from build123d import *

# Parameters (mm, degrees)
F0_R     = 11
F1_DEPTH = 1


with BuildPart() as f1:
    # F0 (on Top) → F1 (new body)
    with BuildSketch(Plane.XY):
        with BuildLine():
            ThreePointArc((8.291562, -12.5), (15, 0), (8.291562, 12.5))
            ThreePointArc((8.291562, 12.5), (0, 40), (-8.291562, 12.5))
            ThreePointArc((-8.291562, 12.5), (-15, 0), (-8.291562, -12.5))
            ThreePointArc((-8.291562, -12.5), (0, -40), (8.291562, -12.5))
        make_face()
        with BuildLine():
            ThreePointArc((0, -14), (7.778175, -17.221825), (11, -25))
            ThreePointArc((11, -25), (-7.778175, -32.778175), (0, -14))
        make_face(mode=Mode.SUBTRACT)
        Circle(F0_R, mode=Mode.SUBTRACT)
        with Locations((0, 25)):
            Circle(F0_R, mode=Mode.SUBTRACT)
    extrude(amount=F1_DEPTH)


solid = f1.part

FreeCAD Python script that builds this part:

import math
import FreeCAD as App
import Part
import Sketcher
Q = App.Units.Quantity

doc = App.newDocument("Part")
params = doc.addObject("Spreadsheet::Sheet", "Params")
for row, (alias, value) in enumerate([
    ("sketch1_diameter", "22 mm"),
    ("sketch1_radius", "15 mm"),
    ("pad1_length", "1 mm"),
], start=1):
    params.set(f"A{row}", alias)
    params.set(f"B{row}", "=" + value)
    params.setAlias(f"B{row}", alias)

body = doc.addObject("PartDesign::Body", "Body")

sketch1 = body.newObject("Sketcher::SketchObject", "Sketch")
sketch1.AttachmentSupport = (doc.getObject("XY_Plane"), [""])
sketch1.MapMode = "FlatFace"
sketch1.addGeometry(Part.ArcOfCircle(Part.Circle(App.Vector(0, 0, 0), App.Vector(0, 0, 1), 15), math.radians(-56), math.radians(56)), False)
sketch1.addGeometry(Part.ArcOfCircle(Part.Circle(App.Vector(0, 25, 0), App.Vector(0, 0, 1), 15), math.radians(-56), math.radians(236)), False)
sketch1.addGeometry(Part.ArcOfCircle(Part.Circle(App.Vector(0, 0, 0), App.Vector(0, 0, 1), 15), math.radians(124), math.radians(236)), False)
sketch1.addGeometry(Part.ArcOfCircle(Part.Circle(App.Vector(0, -25, 0), App.Vector(0, 0, 1), 15), math.radians(124), math.radians(416)), False)
sketch1.addGeometry(Part.ArcOfCircle(Part.Circle(App.Vector(0, -25, 0), App.Vector(0, 0, 1), 11), math.radians(90), math.radians(360)), False)
sketch1.addGeometry(Part.ArcOfCircle(Part.Circle(App.Vector(0, -25, 0), App.Vector(0, 0, 1), 11), math.radians(0), math.radians(90)), False)
sketch1.addGeometry(Part.Circle(App.Vector(0, 0, 0), App.Vector(0, 0, 1), 11), False)
sketch1.addGeometry(Part.Circle(App.Vector(0, 25, 0), App.Vector(0, 0, 1), 11), False)
sketch1.addConstraint(Sketcher.Constraint("Coincident", 0, 2, 1, 1))
sketch1.addConstraint(Sketcher.Constraint("Coincident", 1, 2, 2, 1))
sketch1.addConstraint(Sketcher.Constraint("Coincident", 2, 2, 3, 1))
sketch1.addConstraint(Sketcher.Constraint("Coincident", 3, 2, 0, 1))
sketch1.addConstraint(Sketcher.Constraint("Tangent", 4, 1, 5, 2))
sketch1.addConstraint(Sketcher.Constraint("Coincident", 5, 1, 4, 2))
sketch1.addConstraint(Sketcher.Constraint("Coincident", 0, 3, -1, 1))
sketch1.addConstraint(Sketcher.Constraint("Coincident", 2, 3, -1, 1))
sketch1.addConstraint(Sketcher.Constraint("Coincident", 6, 3, -1, 1))
sketch1.addConstraint(Sketcher.Constraint("Coincident", 4, 3, 3, 3))
sketch1.addConstraint(Sketcher.Constraint("Coincident", 7, 3, 1, 3))
sketch1.addConstraint(Sketcher.Constraint("Equal", 0, 1))
sketch1.addConstraint(Sketcher.Constraint("Equal", 1, 2))
sketch1.addConstraint(Sketcher.Constraint("Equal", 2, 3))
sketch1.addConstraint(Sketcher.Constraint("Equal", 5, 6))
sketch1.addConstraint(Sketcher.Constraint("Equal", 6, 7))
sketch1.addConstraint(Sketcher.Constraint("Symmetric", 1, 3, 3, 3, -1, 1))
sketch1.addConstraint(Sketcher.Constraint("PointOnObject", 1, 3, -2))
sketch1.addConstraint(Sketcher.Constraint("PointOnObject", 4, 1, -2))
sketch1.addConstraint(Sketcher.Constraint("Horizontal", 4, 3, 5, 1))
sketch1.addConstraint(Sketcher.Constraint("Diameter", 6, Q("22 mm")))
sketch1.addConstraint(Sketcher.Constraint("Radius", 0, Q("15 mm")))
sketch1.addConstraint(Sketcher.Constraint("DistanceY", -1, 1, 1, 3, Q("25 mm")))
sketch1.setExpression("Constraints[20]", "Params.sketch1_diameter")
sketch1.setExpression("Constraints[21]", "Params.sketch1_radius")
pad1 = body.newObject("PartDesign::Pad", "Pad")
pad1.Profile = sketch1
pad1.setExpression("Length", "Params.pad1_length")

doc.recompute()
